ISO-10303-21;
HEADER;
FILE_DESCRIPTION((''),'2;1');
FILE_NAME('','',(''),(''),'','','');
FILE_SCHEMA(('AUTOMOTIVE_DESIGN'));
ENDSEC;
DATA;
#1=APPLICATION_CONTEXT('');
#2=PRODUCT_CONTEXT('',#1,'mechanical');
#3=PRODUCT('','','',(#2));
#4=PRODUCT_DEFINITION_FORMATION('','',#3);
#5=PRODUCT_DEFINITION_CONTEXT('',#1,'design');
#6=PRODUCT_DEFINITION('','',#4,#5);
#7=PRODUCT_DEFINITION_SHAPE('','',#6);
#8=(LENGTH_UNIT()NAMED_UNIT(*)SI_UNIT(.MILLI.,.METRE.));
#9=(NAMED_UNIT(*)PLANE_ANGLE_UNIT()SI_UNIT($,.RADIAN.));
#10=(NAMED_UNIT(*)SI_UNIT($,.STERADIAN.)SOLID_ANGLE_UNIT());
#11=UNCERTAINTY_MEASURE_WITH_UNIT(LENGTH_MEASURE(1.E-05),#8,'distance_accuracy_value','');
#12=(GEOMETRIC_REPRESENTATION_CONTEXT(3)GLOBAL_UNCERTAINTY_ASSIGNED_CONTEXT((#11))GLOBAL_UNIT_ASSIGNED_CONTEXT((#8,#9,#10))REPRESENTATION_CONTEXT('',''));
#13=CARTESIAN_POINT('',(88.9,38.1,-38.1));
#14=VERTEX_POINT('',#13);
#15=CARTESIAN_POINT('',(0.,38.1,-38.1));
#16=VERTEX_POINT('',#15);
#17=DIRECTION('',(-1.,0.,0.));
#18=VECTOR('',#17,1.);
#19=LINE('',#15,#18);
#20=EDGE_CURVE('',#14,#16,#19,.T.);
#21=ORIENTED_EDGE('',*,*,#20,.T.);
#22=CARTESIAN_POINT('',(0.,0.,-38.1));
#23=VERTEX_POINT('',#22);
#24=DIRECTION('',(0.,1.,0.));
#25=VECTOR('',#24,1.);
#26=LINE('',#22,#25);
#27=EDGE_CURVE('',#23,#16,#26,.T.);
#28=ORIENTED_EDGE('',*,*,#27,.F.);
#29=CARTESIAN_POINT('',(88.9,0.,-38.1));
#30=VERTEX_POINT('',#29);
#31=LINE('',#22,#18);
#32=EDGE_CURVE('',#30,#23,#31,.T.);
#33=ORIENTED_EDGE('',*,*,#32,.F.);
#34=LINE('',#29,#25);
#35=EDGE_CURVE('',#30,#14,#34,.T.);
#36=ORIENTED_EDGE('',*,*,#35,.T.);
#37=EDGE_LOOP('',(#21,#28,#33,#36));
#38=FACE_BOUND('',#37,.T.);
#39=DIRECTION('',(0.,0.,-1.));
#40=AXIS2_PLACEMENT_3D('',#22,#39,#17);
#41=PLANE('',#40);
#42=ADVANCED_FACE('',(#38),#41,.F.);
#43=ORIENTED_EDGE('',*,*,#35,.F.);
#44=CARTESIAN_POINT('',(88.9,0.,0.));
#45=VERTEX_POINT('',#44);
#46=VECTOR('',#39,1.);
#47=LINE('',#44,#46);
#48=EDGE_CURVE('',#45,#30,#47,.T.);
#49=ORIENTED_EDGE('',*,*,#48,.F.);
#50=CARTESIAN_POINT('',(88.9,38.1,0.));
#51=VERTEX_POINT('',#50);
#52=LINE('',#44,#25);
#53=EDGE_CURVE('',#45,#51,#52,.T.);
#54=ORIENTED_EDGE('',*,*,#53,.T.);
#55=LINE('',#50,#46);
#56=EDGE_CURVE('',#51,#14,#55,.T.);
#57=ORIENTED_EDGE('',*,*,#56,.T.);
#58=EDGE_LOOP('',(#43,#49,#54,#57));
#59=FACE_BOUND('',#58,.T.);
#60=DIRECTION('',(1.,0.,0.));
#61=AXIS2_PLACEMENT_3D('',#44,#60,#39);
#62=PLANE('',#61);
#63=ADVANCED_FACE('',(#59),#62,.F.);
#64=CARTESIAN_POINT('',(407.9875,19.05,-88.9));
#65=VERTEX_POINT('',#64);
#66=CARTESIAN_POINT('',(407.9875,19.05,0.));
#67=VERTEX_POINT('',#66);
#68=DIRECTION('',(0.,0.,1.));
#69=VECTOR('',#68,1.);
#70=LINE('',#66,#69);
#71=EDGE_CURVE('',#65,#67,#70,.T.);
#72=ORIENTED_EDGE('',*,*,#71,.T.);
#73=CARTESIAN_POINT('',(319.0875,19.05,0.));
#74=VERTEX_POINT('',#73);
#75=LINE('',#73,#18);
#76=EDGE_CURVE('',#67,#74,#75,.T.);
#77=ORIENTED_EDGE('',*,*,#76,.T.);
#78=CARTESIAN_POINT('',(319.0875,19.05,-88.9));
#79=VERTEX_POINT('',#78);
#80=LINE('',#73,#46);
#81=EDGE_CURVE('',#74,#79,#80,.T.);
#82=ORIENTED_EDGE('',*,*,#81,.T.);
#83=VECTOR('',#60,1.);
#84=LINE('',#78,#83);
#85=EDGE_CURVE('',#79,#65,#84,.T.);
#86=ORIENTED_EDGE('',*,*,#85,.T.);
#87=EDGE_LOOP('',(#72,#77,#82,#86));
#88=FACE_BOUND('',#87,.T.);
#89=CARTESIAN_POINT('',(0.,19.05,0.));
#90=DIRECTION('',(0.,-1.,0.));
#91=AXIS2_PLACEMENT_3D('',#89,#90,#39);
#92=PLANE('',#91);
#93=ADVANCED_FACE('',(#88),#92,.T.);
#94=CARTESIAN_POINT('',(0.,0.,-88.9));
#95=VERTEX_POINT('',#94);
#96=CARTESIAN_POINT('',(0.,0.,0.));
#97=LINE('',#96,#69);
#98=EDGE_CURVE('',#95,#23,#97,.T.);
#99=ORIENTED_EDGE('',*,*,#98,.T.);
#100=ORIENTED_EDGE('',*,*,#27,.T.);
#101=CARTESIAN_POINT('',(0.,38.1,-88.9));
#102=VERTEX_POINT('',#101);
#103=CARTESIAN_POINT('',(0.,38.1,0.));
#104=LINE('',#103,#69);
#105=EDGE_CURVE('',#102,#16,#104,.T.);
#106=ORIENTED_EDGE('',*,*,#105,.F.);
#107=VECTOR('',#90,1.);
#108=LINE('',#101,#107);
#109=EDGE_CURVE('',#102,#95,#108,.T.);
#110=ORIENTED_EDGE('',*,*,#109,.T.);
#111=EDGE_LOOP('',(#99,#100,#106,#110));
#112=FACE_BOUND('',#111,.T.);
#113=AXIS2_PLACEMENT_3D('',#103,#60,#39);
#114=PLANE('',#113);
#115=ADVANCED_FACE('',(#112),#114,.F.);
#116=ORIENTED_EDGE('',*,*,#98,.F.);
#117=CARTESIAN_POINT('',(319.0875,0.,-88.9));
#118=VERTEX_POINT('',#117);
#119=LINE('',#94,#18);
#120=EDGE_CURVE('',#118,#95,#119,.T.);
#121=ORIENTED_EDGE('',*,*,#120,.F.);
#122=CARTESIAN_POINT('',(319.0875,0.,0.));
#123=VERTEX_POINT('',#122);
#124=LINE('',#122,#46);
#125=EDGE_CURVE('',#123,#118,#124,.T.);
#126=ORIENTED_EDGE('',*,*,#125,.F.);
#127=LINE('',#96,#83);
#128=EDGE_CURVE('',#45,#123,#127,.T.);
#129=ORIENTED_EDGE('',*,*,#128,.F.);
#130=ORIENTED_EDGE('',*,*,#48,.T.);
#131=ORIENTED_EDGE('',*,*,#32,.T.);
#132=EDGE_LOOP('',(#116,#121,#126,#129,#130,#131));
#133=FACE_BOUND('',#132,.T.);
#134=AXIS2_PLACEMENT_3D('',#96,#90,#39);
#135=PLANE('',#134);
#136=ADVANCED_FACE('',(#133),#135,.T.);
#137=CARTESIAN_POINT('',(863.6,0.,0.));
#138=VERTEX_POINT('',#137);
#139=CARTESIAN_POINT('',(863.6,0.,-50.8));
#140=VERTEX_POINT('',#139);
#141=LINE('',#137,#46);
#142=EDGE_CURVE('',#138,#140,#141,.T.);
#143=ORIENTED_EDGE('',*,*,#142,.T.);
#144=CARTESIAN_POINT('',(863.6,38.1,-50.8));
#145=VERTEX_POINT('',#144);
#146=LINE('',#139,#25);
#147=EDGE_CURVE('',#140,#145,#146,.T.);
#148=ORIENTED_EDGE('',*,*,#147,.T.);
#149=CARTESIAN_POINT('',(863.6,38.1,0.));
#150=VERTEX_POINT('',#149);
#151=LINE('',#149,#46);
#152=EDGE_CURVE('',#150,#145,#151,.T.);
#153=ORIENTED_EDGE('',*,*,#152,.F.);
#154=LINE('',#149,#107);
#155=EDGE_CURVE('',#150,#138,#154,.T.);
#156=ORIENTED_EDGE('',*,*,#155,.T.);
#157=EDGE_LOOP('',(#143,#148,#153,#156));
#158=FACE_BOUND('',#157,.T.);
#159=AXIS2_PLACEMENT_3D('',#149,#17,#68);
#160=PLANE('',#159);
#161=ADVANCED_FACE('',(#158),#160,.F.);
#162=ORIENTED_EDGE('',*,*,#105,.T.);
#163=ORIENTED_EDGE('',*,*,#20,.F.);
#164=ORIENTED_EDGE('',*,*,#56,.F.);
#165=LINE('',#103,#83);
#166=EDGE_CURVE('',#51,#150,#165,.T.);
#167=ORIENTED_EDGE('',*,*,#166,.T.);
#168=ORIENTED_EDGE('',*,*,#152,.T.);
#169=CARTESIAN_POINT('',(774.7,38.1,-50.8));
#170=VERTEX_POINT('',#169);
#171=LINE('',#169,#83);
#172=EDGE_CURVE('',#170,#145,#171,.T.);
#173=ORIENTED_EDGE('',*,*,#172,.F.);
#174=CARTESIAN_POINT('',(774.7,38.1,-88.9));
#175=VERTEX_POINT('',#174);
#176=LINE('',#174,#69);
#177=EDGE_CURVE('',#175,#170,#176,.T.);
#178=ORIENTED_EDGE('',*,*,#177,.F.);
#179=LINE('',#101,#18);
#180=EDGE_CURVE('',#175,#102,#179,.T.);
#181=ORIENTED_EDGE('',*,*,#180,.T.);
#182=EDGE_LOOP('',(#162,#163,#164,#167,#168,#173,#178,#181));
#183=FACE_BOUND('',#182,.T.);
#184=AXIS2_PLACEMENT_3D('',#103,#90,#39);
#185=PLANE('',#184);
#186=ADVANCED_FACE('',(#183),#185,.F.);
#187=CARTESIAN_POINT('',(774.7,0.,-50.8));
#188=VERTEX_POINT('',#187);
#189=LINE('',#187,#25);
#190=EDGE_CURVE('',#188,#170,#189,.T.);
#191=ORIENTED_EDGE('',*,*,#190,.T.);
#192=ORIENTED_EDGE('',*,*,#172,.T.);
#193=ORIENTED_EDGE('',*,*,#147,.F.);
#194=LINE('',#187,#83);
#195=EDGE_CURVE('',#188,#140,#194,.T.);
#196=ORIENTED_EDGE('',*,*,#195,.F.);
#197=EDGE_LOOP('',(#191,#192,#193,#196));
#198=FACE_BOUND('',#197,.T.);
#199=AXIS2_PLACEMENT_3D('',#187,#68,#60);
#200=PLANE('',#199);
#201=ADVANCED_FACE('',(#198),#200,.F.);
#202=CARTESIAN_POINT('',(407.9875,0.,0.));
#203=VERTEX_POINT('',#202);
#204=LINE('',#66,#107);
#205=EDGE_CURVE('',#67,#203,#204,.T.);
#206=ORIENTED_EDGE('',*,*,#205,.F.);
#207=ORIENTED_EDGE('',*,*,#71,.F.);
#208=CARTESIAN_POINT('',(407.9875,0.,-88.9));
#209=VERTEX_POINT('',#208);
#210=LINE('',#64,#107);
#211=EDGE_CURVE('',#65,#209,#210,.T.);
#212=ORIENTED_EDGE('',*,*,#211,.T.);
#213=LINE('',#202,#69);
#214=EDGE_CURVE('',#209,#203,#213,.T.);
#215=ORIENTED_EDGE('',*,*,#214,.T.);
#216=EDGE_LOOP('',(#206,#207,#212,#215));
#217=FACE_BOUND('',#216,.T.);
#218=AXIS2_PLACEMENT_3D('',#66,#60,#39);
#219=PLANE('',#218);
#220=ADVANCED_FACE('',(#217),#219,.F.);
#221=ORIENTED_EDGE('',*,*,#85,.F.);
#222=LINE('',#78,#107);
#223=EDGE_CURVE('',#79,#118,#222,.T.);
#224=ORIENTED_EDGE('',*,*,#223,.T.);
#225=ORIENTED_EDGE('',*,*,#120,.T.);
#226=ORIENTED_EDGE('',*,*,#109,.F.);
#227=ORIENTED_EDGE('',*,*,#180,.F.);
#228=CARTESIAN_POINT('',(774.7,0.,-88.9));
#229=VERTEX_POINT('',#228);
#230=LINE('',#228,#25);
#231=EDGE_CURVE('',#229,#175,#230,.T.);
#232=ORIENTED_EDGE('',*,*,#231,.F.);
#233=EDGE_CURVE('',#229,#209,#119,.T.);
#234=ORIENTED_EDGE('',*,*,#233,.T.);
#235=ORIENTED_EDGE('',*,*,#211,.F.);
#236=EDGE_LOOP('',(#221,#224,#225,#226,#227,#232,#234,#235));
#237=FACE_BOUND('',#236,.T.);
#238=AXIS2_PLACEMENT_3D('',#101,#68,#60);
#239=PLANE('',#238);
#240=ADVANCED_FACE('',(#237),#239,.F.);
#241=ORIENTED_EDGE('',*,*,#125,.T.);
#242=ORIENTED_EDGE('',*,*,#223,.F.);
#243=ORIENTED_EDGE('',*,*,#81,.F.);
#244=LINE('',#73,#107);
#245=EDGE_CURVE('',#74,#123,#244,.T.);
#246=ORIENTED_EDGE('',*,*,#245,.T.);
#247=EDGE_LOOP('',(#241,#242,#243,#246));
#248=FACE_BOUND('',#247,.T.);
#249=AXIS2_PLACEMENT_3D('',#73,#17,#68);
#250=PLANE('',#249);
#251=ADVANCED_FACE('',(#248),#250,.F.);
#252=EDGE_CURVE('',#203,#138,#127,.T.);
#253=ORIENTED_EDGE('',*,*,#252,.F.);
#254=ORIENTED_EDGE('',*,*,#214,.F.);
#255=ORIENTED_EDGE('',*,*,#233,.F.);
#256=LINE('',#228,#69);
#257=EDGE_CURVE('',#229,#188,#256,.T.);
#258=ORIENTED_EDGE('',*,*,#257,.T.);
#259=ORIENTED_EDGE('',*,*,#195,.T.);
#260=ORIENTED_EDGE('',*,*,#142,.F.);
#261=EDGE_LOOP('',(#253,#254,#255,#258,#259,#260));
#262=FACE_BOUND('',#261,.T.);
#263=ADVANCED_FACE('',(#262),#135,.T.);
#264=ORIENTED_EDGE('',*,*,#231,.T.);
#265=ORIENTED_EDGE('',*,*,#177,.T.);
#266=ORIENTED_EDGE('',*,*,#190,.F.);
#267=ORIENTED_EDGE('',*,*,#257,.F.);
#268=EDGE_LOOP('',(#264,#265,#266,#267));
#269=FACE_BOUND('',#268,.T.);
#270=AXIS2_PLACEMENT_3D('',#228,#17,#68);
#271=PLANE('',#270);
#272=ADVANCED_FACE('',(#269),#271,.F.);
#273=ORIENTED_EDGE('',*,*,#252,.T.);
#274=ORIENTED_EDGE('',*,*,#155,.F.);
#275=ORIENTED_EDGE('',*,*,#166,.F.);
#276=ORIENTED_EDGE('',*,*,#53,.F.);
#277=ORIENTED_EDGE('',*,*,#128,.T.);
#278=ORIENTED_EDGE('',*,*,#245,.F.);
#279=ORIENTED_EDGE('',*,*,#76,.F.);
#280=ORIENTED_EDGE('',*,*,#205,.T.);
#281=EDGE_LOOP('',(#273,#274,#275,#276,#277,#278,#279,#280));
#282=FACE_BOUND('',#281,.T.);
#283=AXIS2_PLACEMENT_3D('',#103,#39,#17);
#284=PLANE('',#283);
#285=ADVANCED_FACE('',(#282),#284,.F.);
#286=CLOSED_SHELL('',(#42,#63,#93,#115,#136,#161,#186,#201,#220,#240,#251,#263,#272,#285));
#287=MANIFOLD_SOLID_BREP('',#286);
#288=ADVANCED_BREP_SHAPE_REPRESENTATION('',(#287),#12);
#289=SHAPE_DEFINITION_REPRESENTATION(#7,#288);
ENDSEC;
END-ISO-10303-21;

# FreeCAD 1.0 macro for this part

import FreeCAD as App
import Part
import Sketcher
Q = App.Units.Quantity


def add_polygon(sketch, points):
    """Adds a closed chain of lines whose ends are joined by coincident constraints."""
    first, n = sketch.GeometryCount, len(points)
    for a, b in zip(points, points[1:] + points[:1]):
        sketch.addGeometry(Part.LineSegment(App.Vector(*a, 0), App.Vector(*b, 0)), False)
    for i in range(n):
        sketch.addConstraint(Sketcher.Constraint("Coincident", first + i, 2, first + (i + 1) % n, 1))

doc = App.newDocument("Part")
params = doc.addObject("Spreadsheet::Sheet", "Params")
for row, (alias, value) in enumerate([
    ("sketch1_width", "34 in"),
    ("sketch1_height", "3.5 in"),
    ("pad1_length", "1.5 in"),
    ("sketch2_width", "3.5 in"),
    ("pocket1_length", "0.75 in"),
    ("sketch3_width", "3.5 in"),
    ("sketch3_height", "1.5 in"),
    ("sketch4_width", "3.5 in"),
    ("sketch4_height", "1.5 in"),
], start=1):
    params.set(f"A{row}", alias)
    params.set(f"B{row}", "=" + value)
    params.setAlias(f"B{row}", alias)

body = doc.addObject("PartDesign::Body", "Body")

sketch1 = body.newObject("Sketcher::SketchObject", "Sketch")
sketch1.AttachmentSupport = (doc.getObject("XZ_Plane"), [""])
sketch1.MapMode = "FlatFace"
add_polygon(sketch1, [(0, -89), (0, 0), (864, 0), (864, -89)])
sketch1.addConstraint([
    Sketcher.Constraint("Vertical", 0),
    Sketcher.Constraint("Horizontal", 1),
    Sketcher.Constraint("Vertical", 2),
    Sketcher.Constraint("Horizontal", 3),
    Sketcher.Constraint("Coincident", 0, 2, -1, 1),
    Sketcher.Constraint("DistanceX", 1, 1, 1, 2, Q("34 in")),
    Sketcher.Constraint("DistanceY", 0, 1, 0, 2, Q("3.5 in")),
])
sketch1.setExpression("Constraints[9]", "Params.sketch1_width")
sketch1.setExpression("Constraints[10]", "Params.sketch1_height")
pad1 = body.newObject("PartDesign::Pad", "Pad")
pad1.Profile = sketch1
pad1.setExpression("Length", "Params.pad1_length")
pad1.Reversed = True

sketch2 = body.newObject("Sketcher::SketchObject", "Sketch001")
sketch2.AttachmentSupport = (doc.getObject("XZ_Plane"), [""])
sketch2.MapMode = "FlatFace"
add_polygon(sketch2, [(319, 0), (319, -89), (408, -89), (408, 0)])
sketch2.addConstraint([
    Sketcher.Constraint("Vertical", 0),
    Sketcher.Constraint("Horizontal", 1),
    Sketcher.Constraint("Vertical", 2),
    Sketcher.Constraint("Horizontal", 3),
    Sketcher.Constraint("PointOnObject", 2, 2, -1),
    Sketcher.Constraint("Equal", 3, 0),
    Sketcher.Constraint("DistanceX", 1, 1, 1, 2, Q("3.5 in")),
    Sketcher.Constraint("DistanceX", -1, 1, 0, 2, Q("12.5625 in")),
])
sketch2.setExpression("Constraints[10]", "Params.sketch2_width")
pocket1 = body.newObject("PartDesign::Pocket", "Pocket")
pocket1.Profile = sketch2
pocket1.setExpression("Length", "Params.pocket1_length")

sketch3 = body.newObject("Sketcher::SketchObject", "Sketch002")
sketch3.AttachmentSupport = (doc.getObject("XZ_Plane"), [""])
sketch3.MapMode = "FlatFace"
sketch3.AttachmentOffset = App.Placement(App.Vector(0, 0, -1.5 * 25.4), App.Rotation())
add_polygon(sketch3, [(0, -38), (0, 0), (89, 0), (89, -38)])
sketch3.addConstraint([
    Sketcher.Constraint("Vertical", 0),
    Sketcher.Constraint("Horizontal", 1),
    Sketcher.Constraint("Vertical", 2),
    Sketcher.Constraint("Horizontal", 3),
    Sketcher.Constraint("Coincident", 0, 2, -1, 1),
    Sketcher.Constraint("DistanceX", 1, 1, 1, 2, Q("3.5 in")),
    Sketcher.Constraint("DistanceY", 0, 1, 0, 2, Q("1.5 in")),
])
sketch3.setExpression("Constraints[9]", "Params.sketch3_width")
sketch3.setExpression("Constraints[10]", "Params.sketch3_height")
pocket2 = body.newObject("PartDesign::Pocket", "Pocket001")
pocket2.Profile = sketch3
pocket2.Type = "ThroughAll"
pocket2.Reversed = True

sketch4 = body.newObject("Sketcher::SketchObject", "Sketch003")
sketch4.AttachmentSupport = (doc.getObject("XZ_Plane"), [""])
sketch4.MapMode = "FlatFace"
sketch4.AttachmentOffset = App.Placement(App.Vector(0, 0, -1.5 * 25.4), App.Rotation())
add_polygon(sketch4, [(775, -89), (775, -51), (864, -51), (864, -89)])
sketch4.addConstraint([
    Sketcher.Constraint("Vertical", 0),
    Sketcher.Constraint("Horizontal", 1),
    Sketcher.Constraint("Vertical", 2),
    Sketcher.Constraint("Horizontal", 3),
    Sketcher.Constraint("DistanceX", 1, 1, 1, 2, Q("3.5 in")),
    Sketcher.Constraint("DistanceY", 0, 1, 0, 2, Q("1.5 in")),
    Sketcher.Constraint("DistanceY", 0, 2, -1, 1, Q("2 in")),
    Sketcher.Constraint("DistanceX", -1, 1, 1, 2, Q("34 in")),
])
sketch4.setExpression("Constraints[8]", "Params.sketch4_width")
sketch4.setExpression("Constraints[9]", "Params.sketch4_height")
pocket3 = body.newObject("PartDesign::Pocket", "Pocket002")
pocket3.Profile = sketch4
pocket3.Type = "ThroughAll"
pocket3.Reversed = True

doc.recompute()
